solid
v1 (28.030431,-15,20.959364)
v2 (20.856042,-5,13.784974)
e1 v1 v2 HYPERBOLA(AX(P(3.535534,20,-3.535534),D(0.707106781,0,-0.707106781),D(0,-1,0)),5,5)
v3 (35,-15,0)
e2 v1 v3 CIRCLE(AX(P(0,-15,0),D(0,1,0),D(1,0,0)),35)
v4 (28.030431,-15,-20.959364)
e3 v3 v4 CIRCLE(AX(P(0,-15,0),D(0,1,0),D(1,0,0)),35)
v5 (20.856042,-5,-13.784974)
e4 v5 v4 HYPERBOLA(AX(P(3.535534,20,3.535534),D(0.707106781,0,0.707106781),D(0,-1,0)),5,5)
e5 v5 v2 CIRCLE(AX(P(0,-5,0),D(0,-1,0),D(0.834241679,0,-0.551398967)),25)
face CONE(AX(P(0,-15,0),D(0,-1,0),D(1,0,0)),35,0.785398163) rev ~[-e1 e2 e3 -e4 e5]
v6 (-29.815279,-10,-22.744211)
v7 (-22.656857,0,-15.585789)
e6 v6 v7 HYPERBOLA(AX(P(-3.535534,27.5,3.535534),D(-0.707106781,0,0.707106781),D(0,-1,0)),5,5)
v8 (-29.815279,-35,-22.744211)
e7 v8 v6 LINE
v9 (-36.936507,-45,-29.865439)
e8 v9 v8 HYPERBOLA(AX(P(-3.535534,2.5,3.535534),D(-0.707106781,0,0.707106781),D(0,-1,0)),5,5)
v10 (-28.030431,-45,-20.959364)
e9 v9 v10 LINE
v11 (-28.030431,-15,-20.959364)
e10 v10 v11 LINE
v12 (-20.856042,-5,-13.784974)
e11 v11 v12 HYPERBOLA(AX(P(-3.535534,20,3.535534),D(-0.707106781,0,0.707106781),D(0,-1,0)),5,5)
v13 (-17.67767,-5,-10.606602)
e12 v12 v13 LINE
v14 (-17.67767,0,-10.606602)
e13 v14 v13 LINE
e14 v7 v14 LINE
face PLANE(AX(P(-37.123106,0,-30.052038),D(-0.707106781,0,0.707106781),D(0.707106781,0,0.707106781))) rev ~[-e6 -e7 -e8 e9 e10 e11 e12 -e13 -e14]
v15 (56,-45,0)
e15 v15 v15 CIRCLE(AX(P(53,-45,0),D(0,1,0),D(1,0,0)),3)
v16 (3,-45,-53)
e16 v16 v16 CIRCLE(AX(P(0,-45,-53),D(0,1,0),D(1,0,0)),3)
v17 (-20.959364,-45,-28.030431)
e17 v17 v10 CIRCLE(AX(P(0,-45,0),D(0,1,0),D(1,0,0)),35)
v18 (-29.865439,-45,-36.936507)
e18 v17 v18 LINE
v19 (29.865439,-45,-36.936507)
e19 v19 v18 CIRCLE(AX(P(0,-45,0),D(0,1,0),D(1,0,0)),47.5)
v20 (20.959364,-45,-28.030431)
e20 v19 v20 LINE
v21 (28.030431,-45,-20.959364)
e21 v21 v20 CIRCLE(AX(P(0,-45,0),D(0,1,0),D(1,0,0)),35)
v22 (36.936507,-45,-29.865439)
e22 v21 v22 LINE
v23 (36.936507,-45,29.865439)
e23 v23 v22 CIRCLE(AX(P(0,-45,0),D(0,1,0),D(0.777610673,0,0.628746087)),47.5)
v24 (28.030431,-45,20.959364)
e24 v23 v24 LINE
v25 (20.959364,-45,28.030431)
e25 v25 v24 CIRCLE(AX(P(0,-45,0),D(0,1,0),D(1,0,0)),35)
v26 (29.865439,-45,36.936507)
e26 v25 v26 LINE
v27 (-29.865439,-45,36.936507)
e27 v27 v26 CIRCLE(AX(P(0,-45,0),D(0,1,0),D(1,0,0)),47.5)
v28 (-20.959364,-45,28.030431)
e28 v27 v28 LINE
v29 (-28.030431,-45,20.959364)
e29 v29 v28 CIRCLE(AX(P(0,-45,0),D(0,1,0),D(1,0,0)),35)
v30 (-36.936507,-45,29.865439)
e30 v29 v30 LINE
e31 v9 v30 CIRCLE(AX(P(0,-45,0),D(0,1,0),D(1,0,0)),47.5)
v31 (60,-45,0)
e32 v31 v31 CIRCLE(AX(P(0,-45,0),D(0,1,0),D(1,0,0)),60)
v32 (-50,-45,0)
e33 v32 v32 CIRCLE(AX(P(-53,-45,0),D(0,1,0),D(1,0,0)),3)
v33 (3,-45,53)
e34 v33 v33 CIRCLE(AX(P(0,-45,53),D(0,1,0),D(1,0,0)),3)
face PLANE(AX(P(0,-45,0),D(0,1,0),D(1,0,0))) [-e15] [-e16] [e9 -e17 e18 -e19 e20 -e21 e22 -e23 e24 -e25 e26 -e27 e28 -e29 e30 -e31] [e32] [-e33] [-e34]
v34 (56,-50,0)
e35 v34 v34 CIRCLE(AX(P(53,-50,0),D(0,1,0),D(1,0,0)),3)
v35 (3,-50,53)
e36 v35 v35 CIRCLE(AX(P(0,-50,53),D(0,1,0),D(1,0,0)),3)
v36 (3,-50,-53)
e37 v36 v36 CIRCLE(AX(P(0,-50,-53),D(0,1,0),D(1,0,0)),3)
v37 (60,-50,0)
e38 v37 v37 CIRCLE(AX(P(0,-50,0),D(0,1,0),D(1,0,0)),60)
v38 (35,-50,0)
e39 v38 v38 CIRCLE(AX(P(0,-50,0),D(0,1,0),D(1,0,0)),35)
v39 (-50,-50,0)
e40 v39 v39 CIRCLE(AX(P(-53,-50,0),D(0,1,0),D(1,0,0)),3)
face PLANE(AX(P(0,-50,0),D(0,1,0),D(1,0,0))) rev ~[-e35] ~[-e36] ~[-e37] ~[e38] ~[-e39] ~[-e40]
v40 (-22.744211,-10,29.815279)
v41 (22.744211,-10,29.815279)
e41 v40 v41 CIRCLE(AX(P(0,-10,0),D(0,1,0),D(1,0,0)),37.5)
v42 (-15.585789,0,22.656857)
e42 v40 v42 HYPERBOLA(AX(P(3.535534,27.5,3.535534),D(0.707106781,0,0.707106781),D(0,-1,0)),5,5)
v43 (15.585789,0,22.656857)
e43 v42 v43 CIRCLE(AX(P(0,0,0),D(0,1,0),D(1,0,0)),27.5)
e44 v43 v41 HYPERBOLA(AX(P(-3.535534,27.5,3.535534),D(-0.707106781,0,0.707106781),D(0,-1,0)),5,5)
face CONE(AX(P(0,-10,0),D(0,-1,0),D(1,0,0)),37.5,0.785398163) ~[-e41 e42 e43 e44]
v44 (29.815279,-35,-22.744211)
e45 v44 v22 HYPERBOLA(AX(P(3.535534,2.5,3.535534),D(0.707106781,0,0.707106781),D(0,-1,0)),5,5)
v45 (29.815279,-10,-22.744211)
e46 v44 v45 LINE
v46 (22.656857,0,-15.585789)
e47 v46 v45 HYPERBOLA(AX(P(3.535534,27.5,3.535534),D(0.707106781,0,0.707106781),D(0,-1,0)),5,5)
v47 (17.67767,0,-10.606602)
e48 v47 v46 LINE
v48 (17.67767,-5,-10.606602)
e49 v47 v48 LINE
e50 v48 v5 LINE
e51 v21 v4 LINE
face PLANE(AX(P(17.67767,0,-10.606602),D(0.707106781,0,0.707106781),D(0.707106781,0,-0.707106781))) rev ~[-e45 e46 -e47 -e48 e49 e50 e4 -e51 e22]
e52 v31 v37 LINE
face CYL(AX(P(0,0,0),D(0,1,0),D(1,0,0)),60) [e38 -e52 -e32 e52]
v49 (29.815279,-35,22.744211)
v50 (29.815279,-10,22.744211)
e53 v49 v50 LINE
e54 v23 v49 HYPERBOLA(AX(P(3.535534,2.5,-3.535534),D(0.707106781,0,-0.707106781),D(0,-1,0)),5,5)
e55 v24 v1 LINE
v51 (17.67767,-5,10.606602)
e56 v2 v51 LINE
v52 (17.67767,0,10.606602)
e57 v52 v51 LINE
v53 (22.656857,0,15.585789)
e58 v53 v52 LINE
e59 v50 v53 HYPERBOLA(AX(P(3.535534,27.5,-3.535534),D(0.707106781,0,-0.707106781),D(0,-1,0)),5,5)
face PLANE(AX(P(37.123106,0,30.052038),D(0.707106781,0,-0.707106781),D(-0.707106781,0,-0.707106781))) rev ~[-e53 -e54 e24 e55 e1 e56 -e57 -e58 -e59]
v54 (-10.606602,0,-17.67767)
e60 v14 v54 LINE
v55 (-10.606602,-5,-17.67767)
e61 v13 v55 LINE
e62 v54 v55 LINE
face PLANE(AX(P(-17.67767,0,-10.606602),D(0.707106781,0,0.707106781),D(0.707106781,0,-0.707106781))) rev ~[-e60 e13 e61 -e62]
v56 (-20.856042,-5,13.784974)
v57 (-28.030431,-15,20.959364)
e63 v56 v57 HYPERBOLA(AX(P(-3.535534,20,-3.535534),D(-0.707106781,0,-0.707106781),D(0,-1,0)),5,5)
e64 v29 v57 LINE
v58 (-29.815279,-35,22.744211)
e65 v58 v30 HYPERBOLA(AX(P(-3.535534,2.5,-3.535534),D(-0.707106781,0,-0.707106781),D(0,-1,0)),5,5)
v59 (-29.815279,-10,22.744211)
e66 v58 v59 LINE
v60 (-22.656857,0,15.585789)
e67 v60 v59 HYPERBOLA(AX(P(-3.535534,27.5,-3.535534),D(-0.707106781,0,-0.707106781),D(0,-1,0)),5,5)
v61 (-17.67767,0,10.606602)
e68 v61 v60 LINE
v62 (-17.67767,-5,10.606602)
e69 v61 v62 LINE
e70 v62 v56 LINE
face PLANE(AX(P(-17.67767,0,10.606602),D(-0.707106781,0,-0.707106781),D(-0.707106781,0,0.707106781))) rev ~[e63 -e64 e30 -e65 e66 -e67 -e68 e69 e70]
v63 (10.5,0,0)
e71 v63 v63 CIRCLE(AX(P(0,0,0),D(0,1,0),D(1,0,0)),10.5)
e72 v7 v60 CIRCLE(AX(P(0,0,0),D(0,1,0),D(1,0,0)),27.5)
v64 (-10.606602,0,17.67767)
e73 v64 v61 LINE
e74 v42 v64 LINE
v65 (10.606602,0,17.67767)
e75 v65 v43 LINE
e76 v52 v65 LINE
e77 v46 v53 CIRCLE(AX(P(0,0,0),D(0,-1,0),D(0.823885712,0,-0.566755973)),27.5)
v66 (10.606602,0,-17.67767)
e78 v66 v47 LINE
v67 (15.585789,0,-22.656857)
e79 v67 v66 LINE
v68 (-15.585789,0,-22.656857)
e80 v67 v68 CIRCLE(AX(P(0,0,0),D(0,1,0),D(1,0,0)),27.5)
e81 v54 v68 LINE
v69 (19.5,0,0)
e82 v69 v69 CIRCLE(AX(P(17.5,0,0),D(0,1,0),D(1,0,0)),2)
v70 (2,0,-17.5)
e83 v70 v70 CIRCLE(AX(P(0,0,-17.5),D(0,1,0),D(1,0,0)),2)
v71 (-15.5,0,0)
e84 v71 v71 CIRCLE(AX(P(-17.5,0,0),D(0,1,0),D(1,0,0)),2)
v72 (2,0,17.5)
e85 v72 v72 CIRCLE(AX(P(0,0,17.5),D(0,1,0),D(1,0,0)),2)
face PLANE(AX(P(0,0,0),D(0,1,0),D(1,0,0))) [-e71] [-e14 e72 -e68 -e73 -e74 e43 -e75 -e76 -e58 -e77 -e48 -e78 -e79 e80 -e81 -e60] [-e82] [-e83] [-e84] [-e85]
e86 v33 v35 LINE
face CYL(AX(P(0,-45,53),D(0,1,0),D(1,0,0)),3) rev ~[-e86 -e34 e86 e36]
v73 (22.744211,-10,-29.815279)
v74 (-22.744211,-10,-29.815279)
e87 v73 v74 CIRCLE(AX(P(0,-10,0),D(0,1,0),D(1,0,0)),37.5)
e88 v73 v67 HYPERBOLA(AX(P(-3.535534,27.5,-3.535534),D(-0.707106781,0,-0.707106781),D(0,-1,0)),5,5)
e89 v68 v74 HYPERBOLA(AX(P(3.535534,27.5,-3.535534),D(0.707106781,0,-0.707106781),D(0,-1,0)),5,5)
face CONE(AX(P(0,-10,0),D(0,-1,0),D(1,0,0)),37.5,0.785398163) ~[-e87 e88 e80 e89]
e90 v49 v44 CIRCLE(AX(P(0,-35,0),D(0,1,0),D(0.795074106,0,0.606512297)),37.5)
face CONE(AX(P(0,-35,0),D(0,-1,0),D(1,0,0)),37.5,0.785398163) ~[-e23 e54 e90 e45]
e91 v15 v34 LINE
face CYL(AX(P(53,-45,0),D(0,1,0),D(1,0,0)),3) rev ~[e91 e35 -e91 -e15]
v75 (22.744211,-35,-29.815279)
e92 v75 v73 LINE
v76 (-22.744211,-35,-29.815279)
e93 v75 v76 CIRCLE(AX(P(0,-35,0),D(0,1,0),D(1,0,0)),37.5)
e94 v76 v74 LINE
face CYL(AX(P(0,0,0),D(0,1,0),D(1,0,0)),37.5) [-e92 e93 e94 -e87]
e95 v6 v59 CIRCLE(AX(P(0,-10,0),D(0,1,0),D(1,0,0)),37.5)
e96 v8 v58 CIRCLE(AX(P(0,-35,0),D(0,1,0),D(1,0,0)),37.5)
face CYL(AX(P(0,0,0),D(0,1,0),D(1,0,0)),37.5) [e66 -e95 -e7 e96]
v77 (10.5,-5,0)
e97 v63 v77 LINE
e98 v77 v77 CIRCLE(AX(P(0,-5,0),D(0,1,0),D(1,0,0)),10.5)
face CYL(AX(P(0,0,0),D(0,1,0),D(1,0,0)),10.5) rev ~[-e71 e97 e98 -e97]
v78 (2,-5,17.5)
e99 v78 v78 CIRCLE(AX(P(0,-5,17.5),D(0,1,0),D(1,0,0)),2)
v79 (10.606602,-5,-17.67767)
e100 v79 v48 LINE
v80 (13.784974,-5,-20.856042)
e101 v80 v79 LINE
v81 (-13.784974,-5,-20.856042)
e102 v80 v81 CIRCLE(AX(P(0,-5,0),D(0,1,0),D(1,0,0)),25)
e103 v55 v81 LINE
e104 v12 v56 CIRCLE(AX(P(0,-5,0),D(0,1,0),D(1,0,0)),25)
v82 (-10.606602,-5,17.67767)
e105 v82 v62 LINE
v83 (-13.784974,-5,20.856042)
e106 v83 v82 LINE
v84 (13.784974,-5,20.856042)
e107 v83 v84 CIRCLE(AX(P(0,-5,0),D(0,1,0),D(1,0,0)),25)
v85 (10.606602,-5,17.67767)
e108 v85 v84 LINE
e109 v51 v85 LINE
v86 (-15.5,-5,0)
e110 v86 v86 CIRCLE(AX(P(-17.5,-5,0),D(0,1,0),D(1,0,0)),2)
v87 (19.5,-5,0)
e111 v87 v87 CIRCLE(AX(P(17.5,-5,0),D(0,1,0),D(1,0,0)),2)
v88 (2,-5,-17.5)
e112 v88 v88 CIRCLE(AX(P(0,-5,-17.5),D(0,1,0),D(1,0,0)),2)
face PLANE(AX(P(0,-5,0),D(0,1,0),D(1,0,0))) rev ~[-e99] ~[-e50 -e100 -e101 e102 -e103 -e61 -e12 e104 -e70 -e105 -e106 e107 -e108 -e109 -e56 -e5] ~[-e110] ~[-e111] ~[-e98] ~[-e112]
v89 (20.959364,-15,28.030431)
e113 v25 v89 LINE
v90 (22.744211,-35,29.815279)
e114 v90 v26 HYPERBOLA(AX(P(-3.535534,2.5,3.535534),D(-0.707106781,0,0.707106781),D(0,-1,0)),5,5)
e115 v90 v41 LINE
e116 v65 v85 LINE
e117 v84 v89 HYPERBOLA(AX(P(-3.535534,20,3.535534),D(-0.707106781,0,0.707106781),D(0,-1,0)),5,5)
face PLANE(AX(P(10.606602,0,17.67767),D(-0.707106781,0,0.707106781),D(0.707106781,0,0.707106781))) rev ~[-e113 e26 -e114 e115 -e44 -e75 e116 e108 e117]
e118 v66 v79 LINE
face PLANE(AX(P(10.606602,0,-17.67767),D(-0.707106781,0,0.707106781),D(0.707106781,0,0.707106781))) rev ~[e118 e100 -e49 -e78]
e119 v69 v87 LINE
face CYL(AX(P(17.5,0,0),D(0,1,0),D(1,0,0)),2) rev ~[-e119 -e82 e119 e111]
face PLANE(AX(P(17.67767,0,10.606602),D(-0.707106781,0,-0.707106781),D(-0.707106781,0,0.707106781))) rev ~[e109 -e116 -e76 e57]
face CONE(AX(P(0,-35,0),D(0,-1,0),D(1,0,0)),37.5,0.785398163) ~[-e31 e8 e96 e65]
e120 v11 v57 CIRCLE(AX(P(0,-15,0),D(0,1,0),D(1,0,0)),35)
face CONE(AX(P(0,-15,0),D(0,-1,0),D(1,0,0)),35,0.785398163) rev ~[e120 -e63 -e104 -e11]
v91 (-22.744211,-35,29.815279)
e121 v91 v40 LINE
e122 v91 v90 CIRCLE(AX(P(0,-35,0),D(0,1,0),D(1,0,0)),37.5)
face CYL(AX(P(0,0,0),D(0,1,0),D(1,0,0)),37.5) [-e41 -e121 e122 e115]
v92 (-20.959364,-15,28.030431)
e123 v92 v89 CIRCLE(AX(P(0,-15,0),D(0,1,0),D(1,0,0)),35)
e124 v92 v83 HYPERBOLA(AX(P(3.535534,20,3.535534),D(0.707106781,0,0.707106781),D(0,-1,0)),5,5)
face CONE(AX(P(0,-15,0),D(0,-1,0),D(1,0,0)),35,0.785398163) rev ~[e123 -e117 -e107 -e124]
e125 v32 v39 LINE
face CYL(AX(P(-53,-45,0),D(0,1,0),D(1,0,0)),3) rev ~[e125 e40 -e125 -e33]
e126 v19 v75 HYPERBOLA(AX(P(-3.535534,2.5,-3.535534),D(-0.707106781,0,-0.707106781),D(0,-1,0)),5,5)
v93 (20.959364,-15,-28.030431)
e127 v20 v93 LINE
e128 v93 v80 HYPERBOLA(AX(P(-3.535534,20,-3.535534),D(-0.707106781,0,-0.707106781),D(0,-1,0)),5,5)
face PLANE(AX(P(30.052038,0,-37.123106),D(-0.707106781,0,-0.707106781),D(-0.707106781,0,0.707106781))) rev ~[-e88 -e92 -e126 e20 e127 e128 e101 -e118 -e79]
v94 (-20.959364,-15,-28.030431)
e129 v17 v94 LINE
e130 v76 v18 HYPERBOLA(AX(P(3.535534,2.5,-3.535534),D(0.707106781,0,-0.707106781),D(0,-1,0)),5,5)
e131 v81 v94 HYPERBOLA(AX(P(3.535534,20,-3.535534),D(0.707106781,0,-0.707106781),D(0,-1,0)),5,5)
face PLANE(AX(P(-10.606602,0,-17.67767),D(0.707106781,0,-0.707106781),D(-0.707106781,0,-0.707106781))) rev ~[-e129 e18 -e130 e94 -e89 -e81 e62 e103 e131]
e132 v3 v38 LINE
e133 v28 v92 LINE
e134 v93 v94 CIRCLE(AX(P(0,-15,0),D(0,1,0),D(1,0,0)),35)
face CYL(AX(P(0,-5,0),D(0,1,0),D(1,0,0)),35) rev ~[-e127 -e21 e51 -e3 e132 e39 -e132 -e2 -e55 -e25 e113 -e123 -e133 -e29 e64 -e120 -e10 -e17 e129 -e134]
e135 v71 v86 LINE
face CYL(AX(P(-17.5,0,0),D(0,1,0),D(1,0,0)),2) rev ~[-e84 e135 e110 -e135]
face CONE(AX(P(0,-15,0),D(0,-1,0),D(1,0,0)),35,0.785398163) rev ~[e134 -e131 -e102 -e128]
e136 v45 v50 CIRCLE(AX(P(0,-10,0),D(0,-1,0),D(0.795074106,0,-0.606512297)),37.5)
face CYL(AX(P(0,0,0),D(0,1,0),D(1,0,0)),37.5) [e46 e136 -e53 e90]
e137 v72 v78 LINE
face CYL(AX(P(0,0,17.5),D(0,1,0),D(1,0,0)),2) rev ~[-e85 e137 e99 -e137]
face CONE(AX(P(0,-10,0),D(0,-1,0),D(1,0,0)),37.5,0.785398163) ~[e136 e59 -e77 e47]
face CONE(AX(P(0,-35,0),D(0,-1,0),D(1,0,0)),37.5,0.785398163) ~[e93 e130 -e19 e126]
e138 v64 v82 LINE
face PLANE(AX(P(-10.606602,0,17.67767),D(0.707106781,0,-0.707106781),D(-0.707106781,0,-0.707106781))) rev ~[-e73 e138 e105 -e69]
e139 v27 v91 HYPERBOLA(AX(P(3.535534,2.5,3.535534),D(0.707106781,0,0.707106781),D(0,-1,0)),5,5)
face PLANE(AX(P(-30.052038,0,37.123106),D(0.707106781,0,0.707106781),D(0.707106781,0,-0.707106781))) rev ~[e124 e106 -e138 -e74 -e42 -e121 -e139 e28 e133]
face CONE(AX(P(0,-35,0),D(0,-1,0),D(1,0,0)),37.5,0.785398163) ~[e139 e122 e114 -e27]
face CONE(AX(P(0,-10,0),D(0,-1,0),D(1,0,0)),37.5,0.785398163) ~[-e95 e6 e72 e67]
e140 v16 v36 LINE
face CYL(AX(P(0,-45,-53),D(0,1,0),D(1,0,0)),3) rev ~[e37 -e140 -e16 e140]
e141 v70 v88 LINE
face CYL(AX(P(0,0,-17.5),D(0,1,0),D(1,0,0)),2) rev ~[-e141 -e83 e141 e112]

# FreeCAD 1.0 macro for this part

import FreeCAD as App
import Part
import Sketcher
from FreeCAD import Vector
Q = App.Units.Quantity


def edges_at(feature, points):
    """Names of the edges that pass closest to the given points."""
    edges = feature.Shape.Edges
    near = lambda p: min(range(len(edges)), key=lambda i: edges[i].distToShape(Part.Vertex(*p))[0])
    return sorted({f"Edge{near(p) + 1}" for p in points})


def add_polygon(sketch, points):
    """Adds a closed chain of lines whose ends are joined by coincident constraints."""
    first, n = sketch.GeometryCount, len(points)
    for a, b in zip(points, points[1:] + points[:1]):
        sketch.addGeometry(Part.LineSegment(App.Vector(*a, 0), App.Vector(*b, 0)), False)
    for i in range(n):
        sketch.addConstraint(Sketcher.Constraint("Coincident", first + i, 2, first + (i + 1) % n, 1))

doc = App.newDocument("Part")
params = doc.addObject("Spreadsheet::Sheet", "Params")
for row, (alias, value) in enumerate([
    ("sketch1_diameter", "120 mm"),
    ("pad1_length", "50 mm"),
    ("sketch2_diameter", "70 mm"),
    ("sketch3_diameter", "21 mm"),
    ("sketch4_diameter", "75 mm"),
    ("pocket3_length", "45 mm"),
    ("chamfer_size", "10 mm"),
    ("chamfer2_size", "10 mm"),
    ("chamfer3_size", "10 mm"),
    ("sketch5_length", "10 mm"),
    ("sketch5_length2", "27.5 mm"),
    ("pocket4_length", "45 mm"),
    ("sketch6_diameter", "4 mm"),
    ("pocket5_length", "5 mm"),
    ("sketch7_diameter", "6 mm"),
    ("pocket6_length", "5 mm"),
], start=1):
    params.set(f"A{row}", alias)
    params.set(f"B{row}", "=" + value)
    params.setAlias(f"B{row}", alias)

body = doc.addObject("PartDesign::Body", "Body")

# Sketch on XZ plane
sketch1 = body.newObject("Sketcher::SketchObject", "Sketch")
sketch1.AttachmentSupport = (doc.getObject("XZ_Plane"), [""])
sketch1.MapMode = "FlatFace"
sketch1.addGeometry(Part.Circle(Vector(0, 0, 0), Vector(0, 0, 1), 60), False)
sketch1.addConstraint([
    Sketcher.Constraint("Coincident", 0, 3, -1, 1),
    Sketcher.Constraint("Diameter", 0, Q("120 mm")),
])
sketch1.setExpression("Constraints[1]", "Params.sketch1_diameter")
pad1 = body.newObject("PartDesign::Pad", "Pad")
pad1.Profile = sketch1
pad1.setExpression("Length", "Params.pad1_length")

# Sketch on XZ plane
sketch2 = body.newObject("Sketcher::SketchObject", "Sketch001")
sketch2.AttachmentSupport = (doc.getObject("XZ_Plane"), [""])
sketch2.MapMode = "FlatFace"
sketch2.AttachmentOffset = App.Placement(Vector(0, 0, 5), App.Rotation())
sketch2.addGeometry(Part.Circle(Vector(0, 0, 0), Vector(0, 0, 1), 35), False)
sketch2.addConstraint([
    Sketcher.Constraint("Coincident", 0, 3, -1, 1),
    Sketcher.Constraint("Diameter", 0, Q("70 mm")),
])
sketch2.setExpression("Constraints[1]", "Params.sketch2_diameter")
pocket1 = body.newObject("PartDesign::Pocket", "Pocket")
pocket1.Profile = sketch2
pocket1.Type = "UpToFirst"
pocket1.Reversed = True

# Sketch on XZ plane
sketch3 = body.newObject("Sketcher::SketchObject", "Sketch002")
sketch3.AttachmentSupport = (doc.getObject("XZ_Plane"), [""])
sketch3.MapMode = "FlatFace"
sketch3.addGeometry(Part.Circle(Vector(0, 0, 0), Vector(0, 0, 1), 10), False)
sketch3.addConstraint([
    Sketcher.Constraint("Coincident", 0, 3, -1, 1),
    Sketcher.Constraint("Diameter", 0, Q("21 mm")),
])
sketch3.setExpression("Constraints[1]", "Params.sketch3_diameter")
pocket2 = body.newObject("PartDesign::Pocket", "Pocket001")
pocket2.Profile = sketch3
pocket2.Type = "ThroughAll"
pocket2.Reversed = True

# Sketch on XZ plane
sketch4 = body.newObject("Sketcher::SketchObject", "Sketch003")
sketch4.AttachmentSupport = (doc.getObject("XZ_Plane"), [""])
sketch4.MapMode = "FlatFace"
add_polygon(sketch4, [(-79, -79), (-79, 79), (79, 79), (79, -79)])  # lines 0-3
sketch4.addGeometry(Part.Circle(Vector(0, 0, 0), Vector(0, 0, 1), 38), False)  # 4
sketch4.addConstraint([
    Sketcher.Constraint("Vertical", 0),
    Sketcher.Constraint("Horizontal", 1),
    Sketcher.Constraint("Vertical", 2),
    Sketcher.Constraint("Horizontal", 3),
    Sketcher.Constraint("Coincident", 4, 3, -1, 1),
    Sketcher.Constraint("Symmetric", 0, 2, 2, 2, -1, 1),
    Sketcher.Constraint("Equal", 3, 0),
    Sketcher.Constraint("Diameter", 4, Q("75 mm")),
    Sketcher.Constraint("DistanceX", 1, 1, 1, 2, Q("157.384 mm")),
])
sketch4.setExpression("Constraints[11]", "Params.sketch4_diameter")
pocket3 = body.newObject("PartDesign::Pocket", "Pocket002")
pocket3.Profile = sketch4
pocket3.setExpression("Length", "Params.pocket3_length")
pocket3.Reversed = True
doc.recompute()

chamfer = body.newObject("PartDesign::Chamfer", "Chamfer")
chamfer.Base = (pocket3, edges_at(pocket3, [(-35, -5, 0)]))
chamfer.setExpression("Size", "Params.chamfer_size")
doc.recompute()

chamfer2 = body.newObject("PartDesign::Chamfer", "Chamfer001")
chamfer2.Base = (chamfer, edges_at(chamfer, [(-37.5, 0, 0)]))
chamfer2.setExpression("Size", "Params.chamfer2_size")
doc.recompute()

chamfer3 = body.newObject("PartDesign::Chamfer", "Chamfer002")
chamfer3.Base = (chamfer2, edges_at(chamfer2, [(-37.5, -45, 0)]))
chamfer3.setExpression("Size", "Params.chamfer3_size")

# Sketch on XZ plane
sketch5 = body.newObject("Sketcher::SketchObject", "Sketch004")
sketch5.AttachmentSupport = (doc.getObject("XZ_Plane"), [""])
sketch5.MapMode = "FlatFace"
add_polygon(sketch5, [(-11, -18), (-30, -37), (-37, -30), (-18, -11)])  # lines 0-3
add_polygon(sketch5, [(18, -11), (37, -30), (30, -37), (11, -18)])  # lines 4-7
add_polygon(sketch5, [(11, 18), (30, 37), (37, 30), (18, 11)])  # lines 8-11
add_polygon(sketch5, [(-18, 11), (-37, 30), (-30, 37), (-11, 18)])  # lines 12-15
sketch5.addConstraint([
    Sketcher.Constraint("Symmetric", 0, 2, 8, 2, -1, 1),
    Sketcher.Constraint("Symmetric", 1, 2, 9, 2, -1, 1),
    Sketcher.Constraint("Symmetric", 2, 2, 10, 2, -1, 1),
    Sketcher.Constraint("Symmetric", 3, 2, 11, 2, -1, 1),
    Sketcher.Constraint("Symmetric", 4, 2, 12, 2, -1, 1),
    Sketcher.Constraint("Symmetric", 5, 2, 13, 2, -1, 1),
    Sketcher.Constraint("Symmetric", 6, 2, 14, 2, -1, 1),
    Sketcher.Constraint("Symmetric", 7, 2, 15, 2, -1, 1),
    Sketcher.Constraint("Symmetric", 1, 2, 4, 2, -2),
    Sketcher.Constraint("Symmetric", 0, 2, 5, 2, -2),
    Sketcher.Constraint("Symmetric", 3, 2, 6, 2, -2),
    Sketcher.Constraint("Symmetric", 2, 2, 7, 2, -2),
    Sketcher.Constraint("Perpendicular", 0, 1),
    Sketcher.Constraint("Perpendicular", 1, 2),
    Sketcher.Constraint("Perpendicular", 2, 3),
    Sketcher.Constraint("Parallel", 3, 4),
    Sketcher.Constraint("Distance", 1, Q("10 mm")),
    Sketcher.Constraint("Distance", 0, Q("27.5 mm")),
    Sketcher.Constraint("DistanceY", 2, 2, -1, 1, Q("10.606602 mm")),
    Sketcher.Constraint("DistanceX", 3, 2, -1, 1, Q("10.606602 mm")),
])
sketch5.setExpression("Constraints[32]", "Params.sketch5_length")
sketch5.setExpression("Constraints[33]", "Params.sketch5_length2")
pocket4 = body.newObject("PartDesign::Pocket", "Pocket003")
pocket4.Profile = sketch5
pocket4.setExpression("Length", "Params.pocket4_length")
pocket4.Reversed = True

# Sketch on XZ plane
sketch6 = body.newObject("Sketcher::SketchObject", "Sketch005")
sketch6.AttachmentSupport = (doc.getObject("XZ_Plane"), [""])
sketch6.MapMode = "FlatFace"
sketch6.addGeometry([
    Part.Circle(Vector(0, -17.5, 0), Vector(0, 0, 1), 2),
    Part.Circle(Vector(17.5, 0, 0), Vector(0, 0, 1), 2),
    Part.Circle(Vector(0, 17.5, 0), Vector(0, 0, 1), 2),
    Part.Circle(Vector(-17.5, 0, 0), Vector(0, 0, 1), 2),
], False)
sketch6.addConstraint([
    Sketcher.Constraint("Equal", 0, 1),
    Sketcher.Constraint("Equal", 1, 2),
    Sketcher.Constraint("Equal", 2, 3),
    Sketcher.Constraint("Symmetric", 0, 3, 2, 3, -1, 1),
    Sketcher.Constraint("Symmetric", 1, 3, 3, 3, -1, 1),
    Sketcher.Constraint("PointOnObject", 0, 3, -2),
    Sketcher.Constraint("PointOnObject", 1, 3, -1),
    Sketcher.Constraint("Diameter", 0, Q("4 mm")),
    Sketcher.Constraint("DistanceY", 0, 3, 2, 3, Q("35 mm")),
    Sketcher.Constraint("DistanceX", 3, 3, 1, 3, Q("35 mm")),
])
sketch6.setExpression("Constraints[7]", "Params.sketch6_diameter")
pocket5 = body.newObject("PartDesign::Pocket", "Pocket004")
pocket5.Profile = sketch6
pocket5.setExpression("Length", "Params.pocket5_length")
pocket5.Reversed = True

# Sketch on XZ plane
sketch7 = body.newObject("Sketcher::SketchObject", "Sketch006")
sketch7.AttachmentSupport = (doc.getObject("XZ_Plane"), [""])
sketch7.MapMode = "FlatFace"
sketch7.AttachmentOffset = App.Placement(Vector(0, 0, 45), App.Rotation())
sketch7.addGeometry([
    Part.Circle(Vector(0, -53, 0), Vector(0, 0, 1), 3),
    Part.Circle(Vector(53, 0, 0), Vector(0, 0, 1), 3),
    Part.Circle(Vector(0, 53, 0), Vector(0, 0, 1), 3),
    Part.Circle(Vector(-53, 0, 0), Vector(0, 0, 1), 3),
], False)
sketch7.addConstraint([
    Sketcher.Constraint("Equal", 0, 1),
    Sketcher.Constraint("Equal", 1, 2),
    Sketcher.Constraint("Equal", 2, 3),
    Sketcher.Constraint("Symmetric", 0, 3, 2, 3, -1, 1),
    Sketcher.Constraint("Symmetric", 1, 3, 3, 3, -1, 1),
    Sketcher.Constraint("PointOnObject", 0, 3, -2),
    Sketcher.Constraint("PointOnObject", 1, 3, -1),
    Sketcher.Constraint("Diameter", 0, Q("6 mm")),
    Sketcher.Constraint("DistanceY", 0, 3, -1, 1, Q("53 mm")),
    Sketcher.Constraint("DistanceX", -1, 1, 1, 3, Q("53 mm")),
])
sketch7.setExpression("Constraints[7]", "Params.sketch7_diameter")
pocket6 = body.newObject("PartDesign::Pocket", "Pocket005")
pocket6.Profile = sketch7
pocket6.setExpression("Length", "Params.pocket6_length")
pocket6.Reversed = True

doc.recompute()
